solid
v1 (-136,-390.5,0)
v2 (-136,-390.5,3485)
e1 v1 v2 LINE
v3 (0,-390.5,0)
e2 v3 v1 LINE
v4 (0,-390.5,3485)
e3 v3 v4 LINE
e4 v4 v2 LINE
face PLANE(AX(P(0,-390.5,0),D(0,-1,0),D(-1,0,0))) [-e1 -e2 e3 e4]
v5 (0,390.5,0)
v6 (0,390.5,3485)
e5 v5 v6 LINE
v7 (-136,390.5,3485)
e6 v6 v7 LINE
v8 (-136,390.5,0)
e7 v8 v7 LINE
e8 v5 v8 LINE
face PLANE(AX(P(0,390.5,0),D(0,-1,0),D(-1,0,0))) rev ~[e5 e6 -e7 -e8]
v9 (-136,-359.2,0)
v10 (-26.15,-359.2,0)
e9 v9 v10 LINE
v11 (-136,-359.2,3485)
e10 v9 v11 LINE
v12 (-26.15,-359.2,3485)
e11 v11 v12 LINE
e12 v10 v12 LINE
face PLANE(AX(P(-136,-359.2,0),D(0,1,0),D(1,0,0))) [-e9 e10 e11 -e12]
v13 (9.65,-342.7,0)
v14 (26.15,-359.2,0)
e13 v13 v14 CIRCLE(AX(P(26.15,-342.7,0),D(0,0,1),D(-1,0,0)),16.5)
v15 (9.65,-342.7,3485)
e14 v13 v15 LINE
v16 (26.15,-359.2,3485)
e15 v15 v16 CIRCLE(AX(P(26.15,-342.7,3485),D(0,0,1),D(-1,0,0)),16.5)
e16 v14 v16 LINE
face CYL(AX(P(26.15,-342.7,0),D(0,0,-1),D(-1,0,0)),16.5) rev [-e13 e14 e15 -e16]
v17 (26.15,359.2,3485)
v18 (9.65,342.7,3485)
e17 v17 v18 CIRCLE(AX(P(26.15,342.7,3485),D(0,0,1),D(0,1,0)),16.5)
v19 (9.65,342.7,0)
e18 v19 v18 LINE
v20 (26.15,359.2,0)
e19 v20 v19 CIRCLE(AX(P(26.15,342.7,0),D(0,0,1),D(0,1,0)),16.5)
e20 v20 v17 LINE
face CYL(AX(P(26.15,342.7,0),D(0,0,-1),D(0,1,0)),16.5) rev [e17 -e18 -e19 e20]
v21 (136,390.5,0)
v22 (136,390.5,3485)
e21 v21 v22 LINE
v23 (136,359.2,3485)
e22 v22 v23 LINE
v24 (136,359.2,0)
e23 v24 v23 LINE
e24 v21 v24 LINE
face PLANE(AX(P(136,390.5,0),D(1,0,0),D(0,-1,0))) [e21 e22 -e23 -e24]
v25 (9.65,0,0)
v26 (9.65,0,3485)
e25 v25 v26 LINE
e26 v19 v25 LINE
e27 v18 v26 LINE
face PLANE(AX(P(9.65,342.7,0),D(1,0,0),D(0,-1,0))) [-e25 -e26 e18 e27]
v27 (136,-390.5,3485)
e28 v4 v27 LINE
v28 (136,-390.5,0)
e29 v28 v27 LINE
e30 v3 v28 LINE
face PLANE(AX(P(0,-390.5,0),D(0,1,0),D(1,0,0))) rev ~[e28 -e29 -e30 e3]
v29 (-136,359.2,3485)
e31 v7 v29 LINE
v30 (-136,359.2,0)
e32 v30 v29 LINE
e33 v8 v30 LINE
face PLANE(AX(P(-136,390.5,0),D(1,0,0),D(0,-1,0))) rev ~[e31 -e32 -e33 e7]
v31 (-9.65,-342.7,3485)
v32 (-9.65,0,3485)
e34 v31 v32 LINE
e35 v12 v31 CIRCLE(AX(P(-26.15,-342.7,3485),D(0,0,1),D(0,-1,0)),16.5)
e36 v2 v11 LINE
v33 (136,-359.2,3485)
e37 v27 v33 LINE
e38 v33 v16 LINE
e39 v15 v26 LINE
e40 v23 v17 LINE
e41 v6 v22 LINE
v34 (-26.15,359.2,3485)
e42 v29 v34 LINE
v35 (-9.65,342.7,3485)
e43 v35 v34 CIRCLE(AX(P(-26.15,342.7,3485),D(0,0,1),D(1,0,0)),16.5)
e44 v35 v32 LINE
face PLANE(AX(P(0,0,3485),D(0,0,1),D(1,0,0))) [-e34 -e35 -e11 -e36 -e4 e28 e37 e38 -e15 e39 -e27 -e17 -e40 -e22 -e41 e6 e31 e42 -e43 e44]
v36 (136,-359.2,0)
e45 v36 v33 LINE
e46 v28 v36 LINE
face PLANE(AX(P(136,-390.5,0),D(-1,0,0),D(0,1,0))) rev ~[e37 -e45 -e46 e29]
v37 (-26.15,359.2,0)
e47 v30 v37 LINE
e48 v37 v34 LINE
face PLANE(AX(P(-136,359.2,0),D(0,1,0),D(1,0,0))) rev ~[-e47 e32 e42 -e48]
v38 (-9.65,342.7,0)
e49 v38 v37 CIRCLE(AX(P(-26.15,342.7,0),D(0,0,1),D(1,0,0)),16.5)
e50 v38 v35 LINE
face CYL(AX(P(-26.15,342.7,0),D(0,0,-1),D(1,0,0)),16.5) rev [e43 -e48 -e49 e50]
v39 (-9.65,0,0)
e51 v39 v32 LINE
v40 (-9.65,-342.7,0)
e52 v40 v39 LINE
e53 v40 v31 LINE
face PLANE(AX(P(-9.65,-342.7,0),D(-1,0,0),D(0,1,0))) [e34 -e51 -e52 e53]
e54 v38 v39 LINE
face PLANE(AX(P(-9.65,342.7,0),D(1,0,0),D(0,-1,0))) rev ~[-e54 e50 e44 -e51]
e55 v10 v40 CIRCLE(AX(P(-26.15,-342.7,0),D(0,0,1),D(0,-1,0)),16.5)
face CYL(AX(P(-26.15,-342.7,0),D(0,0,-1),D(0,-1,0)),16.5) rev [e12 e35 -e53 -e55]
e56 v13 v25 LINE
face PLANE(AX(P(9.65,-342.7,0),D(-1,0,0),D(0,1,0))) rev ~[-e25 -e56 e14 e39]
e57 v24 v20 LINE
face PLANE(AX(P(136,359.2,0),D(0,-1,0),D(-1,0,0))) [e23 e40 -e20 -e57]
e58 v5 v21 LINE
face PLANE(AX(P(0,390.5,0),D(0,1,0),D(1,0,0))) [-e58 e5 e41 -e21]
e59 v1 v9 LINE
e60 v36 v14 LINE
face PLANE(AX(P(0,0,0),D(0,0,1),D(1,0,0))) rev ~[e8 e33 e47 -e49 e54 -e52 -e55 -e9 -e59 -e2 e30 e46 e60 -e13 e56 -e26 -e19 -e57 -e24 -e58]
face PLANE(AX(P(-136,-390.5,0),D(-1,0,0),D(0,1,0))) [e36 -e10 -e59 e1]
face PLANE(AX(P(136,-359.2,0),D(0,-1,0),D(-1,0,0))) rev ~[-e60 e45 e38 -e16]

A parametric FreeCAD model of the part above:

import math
import FreeCAD as App
import Part
import Sketcher

V = App.Vector

doc = App.newDocument("Part")
body = doc.addObject("PartDesign::Body", "Body")

sketch1 = body.newObject("Sketcher::SketchObject", "Sketch")
sketch1.AttachmentSupport = (doc.getObject("XY_Plane"), [""])
sketch1.MapMode = "FlatFace"
sketch1.addGeometry(Part.LineSegment(V(-136, -359.2, 0), V(-136, -390.5, 0)), False)
sketch1.addGeometry(Part.LineSegment(V(-136, -390.5, 0), V(136, -390.5, 0)), False)
sketch1.addGeometry(Part.LineSegment(V(136, -390.5, 0), V(136, -359.2, 0)), False)
sketch1.addGeometry(Part.LineSegment(V(136, -359.2, 0), V(26.15, -359.2, 0)), False)
sketch1.addGeometry(Part.ArcOfCircle(Part.Circle(V(26.15, -342.7, 0), V(0, 0, 1), 16.5), math.radians(180), math.radians(270)), False)
sketch1.addGeometry(Part.LineSegment(V(9.65, -342.7, 0), V(9.65, 342.7, 0)), False)
sketch1.addGeometry(Part.ArcOfCircle(Part.Circle(V(26.15, 342.7, 0), V(0, 0, 1), 16.5), math.radians(90), math.radians(180)), False)
sketch1.addGeometry(Part.LineSegment(V(26.15, 359.2, 0), V(136, 359.2, 0)), False)
sketch1.addGeometry(Part.LineSegment(V(136, 359.2, 0), V(136, 390.5, 0)), False)
sketch1.addGeometry(Part.LineSegment(V(136, 390.5, 0), V(-136, 390.5, 0)), False)
sketch1.addGeometry(Part.LineSegment(V(-136, 390.5, 0), V(-136, 359.2, 0)), False)
sketch1.addGeometry(Part.LineSegment(V(-136, 359.2, 0), V(-26.15, 359.2, 0)), False)
sketch1.addGeometry(Part.ArcOfCircle(Part.Circle(V(-26.15, 342.7, 0), V(0, 0, 1), 16.5), math.radians(0), math.radians(90)), False)
sketch1.addGeometry(Part.LineSegment(V(-9.65, 342.7, 0), V(-9.65, -342.7, 0)), False)
sketch1.addGeometry(Part.ArcOfCircle(Part.Circle(V(-26.15, -342.7, 0), V(0, 0, 1), 16.5), math.radians(-90), math.radians(0)), False)
sketch1.addGeometry(Part.LineSegment(V(-26.15, -359.2, 0), V(-136, -359.2, 0)), False)
sketch1.addConstraint(Sketcher.Constraint("Coincident", 0, 2, 1, 1))
sketch1.addConstraint(Sketcher.Constraint("Coincident", 1, 2, 2, 1))
sketch1.addConstraint(Sketcher.Constraint("Coincident", 2, 2, 3, 1))
sketch1.addConstraint(Sketcher.Constraint("Tangent", 3, 2, 4, 2))
sketch1.addConstraint(Sketcher.Constraint("Tangent", 4, 1, 5, 1))
sketch1.addConstraint(Sketcher.Constraint("Tangent", 5, 2, 6, 2))
sketch1.addConstraint(Sketcher.Constraint("Tangent", 6, 1, 7, 1))
sketch1.addConstraint(Sketcher.Constraint("Coincident", 7, 2, 8, 1))
sketch1.addConstraint(Sketcher.Constraint("Coincident", 8, 2, 9, 1))
sketch1.addConstraint(Sketcher.Constraint("Coincident", 9, 2, 10, 1))
sketch1.addConstraint(Sketcher.Constraint("Coincident", 10, 2, 11, 1))
sketch1.addConstraint(Sketcher.Constraint("Tangent", 11, 2, 12, 2))
sketch1.addConstraint(Sketcher.Constraint("Tangent", 12, 1, 13, 1))
sketch1.addConstraint(Sketcher.Constraint("Tangent", 13, 2, 14, 2))
sketch1.addConstraint(Sketcher.Constraint("Tangent", 14, 1, 15, 1))
sketch1.addConstraint(Sketcher.Constraint("Coincident", 15, 2, 0, 1))
sketch1.addConstraint(Sketcher.Constraint("Vertical", 0))
sketch1.addConstraint(Sketcher.Constraint("Horizontal", 1))
sketch1.addConstraint(Sketcher.Constraint("Vertical", 2))
sketch1.addConstraint(Sketcher.Constraint("Horizontal", 3))
sketch1.addConstraint(Sketcher.Constraint("Vertical", 5))
sketch1.addConstraint(Sketcher.Constraint("Horizontal", 7))
sketch1.addConstraint(Sketcher.Constraint("Vertical", 8))
sketch1.addConstraint(Sketcher.Constraint("Horizontal", 9))
sketch1.addConstraint(Sketcher.Constraint("Vertical", 10))
sketch1.addConstraint(Sketcher.Constraint("Horizontal", 11))
sketch1.addConstraint(Sketcher.Constraint("Vertical", 13))
sketch1.addConstraint(Sketcher.Constraint("Horizontal", 15))
sketch1.addConstraint(Sketcher.Constraint("Equal", 4, 6))
sketch1.addConstraint(Sketcher.Constraint("Equal", 6, 12))
sketch1.addConstraint(Sketcher.Constraint("Equal", 12, 14))
sketch1.addConstraint(Sketcher.Constraint("Symmetric", 4, 3, 12, 3, -1, 1))
sketch1.addConstraint(Sketcher.Constraint("Symmetric", 0, 2, 8, 2, -1, 1))
sketch1.addConstraint(Sketcher.Constraint("Symmetric", 7, 2, 10, 2, -2))
sketch1.addConstraint(Sketcher.Constraint("Symmetric", 2, 2, 15, 2, -2))
sketch1.addConstraint(Sketcher.Constraint("Radius", 4, 16.5))
sketch1.addConstraint(Sketcher.Constraint("DistanceY", 0, 2, 0, 1, 31.3))
sketch1.addConstraint(Sketcher.Constraint("DistanceX", 0, 2, -1, 1, 136.0))
sketch1.addConstraint(Sketcher.Constraint("DistanceY", 0, 2, -1, 1, 390.5))
sketch1.addConstraint(Sketcher.Constraint("DistanceX", -1, 1, 4, 1, 9.65))
pad1 = body.newObject("PartDesign::Pad", "Pad")
pad1.Profile = sketch1
pad1.Length = 3485

doc.recompute()
